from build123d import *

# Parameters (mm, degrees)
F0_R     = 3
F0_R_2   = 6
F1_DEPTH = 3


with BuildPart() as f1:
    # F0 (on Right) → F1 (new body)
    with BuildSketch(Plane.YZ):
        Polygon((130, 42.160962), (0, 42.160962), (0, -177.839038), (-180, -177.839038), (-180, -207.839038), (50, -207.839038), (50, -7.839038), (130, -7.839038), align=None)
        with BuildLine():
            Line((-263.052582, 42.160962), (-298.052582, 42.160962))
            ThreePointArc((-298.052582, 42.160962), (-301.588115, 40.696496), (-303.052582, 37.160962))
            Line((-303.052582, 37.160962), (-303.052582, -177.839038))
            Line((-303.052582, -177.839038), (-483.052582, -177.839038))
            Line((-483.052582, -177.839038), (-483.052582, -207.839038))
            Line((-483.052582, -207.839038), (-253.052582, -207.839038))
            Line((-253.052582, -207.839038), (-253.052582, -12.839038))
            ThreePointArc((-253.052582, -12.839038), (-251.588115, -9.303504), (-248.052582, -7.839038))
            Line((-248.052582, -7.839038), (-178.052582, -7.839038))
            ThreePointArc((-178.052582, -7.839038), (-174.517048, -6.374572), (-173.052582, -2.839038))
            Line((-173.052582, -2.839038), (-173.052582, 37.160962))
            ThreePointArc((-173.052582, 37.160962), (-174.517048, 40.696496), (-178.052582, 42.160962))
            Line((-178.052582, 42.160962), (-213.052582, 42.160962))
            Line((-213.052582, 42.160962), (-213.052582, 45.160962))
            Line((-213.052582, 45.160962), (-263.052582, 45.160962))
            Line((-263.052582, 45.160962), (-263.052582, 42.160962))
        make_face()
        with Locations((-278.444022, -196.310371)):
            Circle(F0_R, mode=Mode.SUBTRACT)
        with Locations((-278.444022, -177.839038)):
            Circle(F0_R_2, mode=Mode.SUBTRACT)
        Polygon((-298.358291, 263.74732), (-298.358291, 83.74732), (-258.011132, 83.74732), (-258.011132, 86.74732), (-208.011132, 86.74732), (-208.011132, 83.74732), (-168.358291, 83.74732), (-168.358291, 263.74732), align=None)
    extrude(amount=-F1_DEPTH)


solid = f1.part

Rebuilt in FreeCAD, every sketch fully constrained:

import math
import FreeCAD as App
import Part
import Sketcher
from FreeCAD import Vector

doc = App.newDocument("Part")
body = doc.addObject("PartDesign::Body", "Body")
body.AllowCompound = True

# Sketch on YZ plane
sketch1 = body.newObject("Sketcher::SketchObject", "Sketch")
sketch1.AttachmentSupport = (doc.getObject("YZ_Plane"), [""])
sketch1.MapMode = "FlatFace"
sketch1.addGeometry([
    Part.LineSegment(Vector(130, 42.160962, 0), Vector(0, 42.160962, 0)),  # 0
    Part.LineSegment(Vector(0, 42.160962, 0), Vector(0, -177.839038, 0)),  # 1
    Part.LineSegment(Vector(0, -177.839038, 0), Vector(-180, -177.839038, 0)),  # 2
    Part.LineSegment(Vector(-180, -177.839038, 0), Vector(-180, -207.839038, 0)),  # 3
    Part.LineSegment(Vector(-180, -207.839038, 0), Vector(50, -207.839038, 0)),  # 4
    Part.LineSegment(Vector(50, -207.839038, 0), Vector(50, -7.839038, 0)),  # 5
    Part.LineSegment(Vector(50, -7.839038, 0), Vector(130, -7.839038, 0)),  # 6
    Part.LineSegment(Vector(130, -7.839038, 0), Vector(130, 42.160962, 0)),  # 7
    Part.LineSegment(Vector(-263.052582, 42.160962, 0), Vector(-298.052582, 42.160962, 0)),  # 8
    Part.ArcOfCircle(Part.Circle(Vector(-298.052581, 37.160961, 0), Vector(0, 0, 1), 5.000001), math.radians(90.000016), math.radians(179.999984)),  # 9
    Part.LineSegment(Vector(-303.052582, 37.160962, 0), Vector(-303.052582, -177.839038, 0)),  # 10
    Part.LineSegment(Vector(-303.052582, -177.839038, 0), Vector(-483.052582, -177.839038, 0)),  # 11
    Part.LineSegment(Vector(-483.052582, -177.839038, 0), Vector(-483.052582, -207.839038, 0)),  # 12
    Part.LineSegment(Vector(-483.052582, -207.839038, 0), Vector(-253.052582, -207.839038, 0)),  # 13
    Part.LineSegment(Vector(-253.052582, -207.839038, 0), Vector(-253.052582, -12.839038, 0)),  # 14
    Part.ArcOfCircle(Part.Circle(Vector(-248.052581, -12.839039, 0), Vector(0, 0, 1), 5.000001), math.radians(90.000016), math.radians(179.999984)),  # 15
    Part.LineSegment(Vector(-248.052582, -7.839038, 0), Vector(-178.052582, -7.839038, 0)),  # 16
    Part.ArcOfCircle(Part.Circle(Vector(-178.052582, -2.839038, 0), Vector(0, 0, 1), 5), math.radians(-90.000004), math.radians(0.000004)),  # 17
    Part.LineSegment(Vector(-173.052582, -2.839038, 0), Vector(-173.052582, 37.160962, 0)),  # 18
    Part.ArcOfCircle(Part.Circle(Vector(-178.052582, 37.160962, 0), Vector(0, 0, 1), 5), math.radians(-0.000004), math.radians(90.000004)),  # 19
    Part.LineSegment(Vector(-178.052582, 42.160962, 0), Vector(-213.052582, 42.160962, 0)),  # 20
    Part.LineSegment(Vector(-213.052582, 42.160962, 0), Vector(-213.052582, 45.160962, 0)),  # 21
    Part.LineSegment(Vector(-213.052582, 45.160962, 0), Vector(-263.052582, 45.160962, 0)),  # 22
    Part.LineSegment(Vector(-263.052582, 45.160962, 0), Vector(-263.052582, 42.160962, 0)),  # 23
    Part.Circle(Vector(-278.444022, -196.310371, 0), Vector(0, 0, 1), 3),  # 24
    Part.Circle(Vector(-278.444022, -177.839038, 0), Vector(0, 0, 1), 6),  # 25
    Part.LineSegment(Vector(-298.358291, 263.74732, 0), Vector(-298.358291, 83.74732, 0)),  # 26
    Part.LineSegment(Vector(-298.358291, 83.74732, 0), Vector(-258.011132, 83.74732, 0)),  # 27
    Part.LineSegment(Vector(-258.011132, 83.74732, 0), Vector(-258.011132, 86.74732, 0)),  # 28
    Part.LineSegment(Vector(-258.011132, 86.74732, 0), Vector(-208.011132, 86.74732, 0)),  # 29
    Part.LineSegment(Vector(-208.011132, 86.74732, 0), Vector(-208.011132, 83.74732, 0)),  # 30
    Part.LineSegment(Vector(-208.011132, 83.74732, 0), Vector(-168.358291, 83.74732, 0)),  # 31
    Part.LineSegment(Vector(-168.358291, 83.74732, 0), Vector(-168.358291, 263.74732, 0)),  # 32
    Part.LineSegment(Vector(-168.358291, 263.74732, 0), Vector(-298.358291, 263.74732, 0)),  # 33
], False)
sketch1.addConstraint([
    Sketcher.Constraint("Coincident", 0, 2, 1, 1),
    Sketcher.Constraint("Coincident", 1, 2, 2, 1),
    Sketcher.Constraint("Coincident", 2, 2, 3, 1),
    Sketcher.Constraint("Coincident", 3, 2, 4, 1),
    Sketcher.Constraint("Coincident", 4, 2, 5, 1),
    Sketcher.Constraint("Coincident", 5, 2, 6, 1),
    Sketcher.Constraint("Coincident", 6, 2, 7, 1),
    Sketcher.Constraint("Coincident", 7, 2, 0, 1),
    Sketcher.Constraint("Tangent", 8, 2, 9, 1),
    Sketcher.Constraint("Tangent", 9, 2, 10, 1),
    Sketcher.Constraint("Coincident", 10, 2, 11, 1),
    Sketcher.Constraint("Coincident", 11, 2, 12, 1),
    Sketcher.Constraint("Coincident", 12, 2, 13, 1),
    Sketcher.Constraint("Coincident", 13, 2, 14, 1),
    Sketcher.Constraint("Tangent", 14, 2, 15, 2),
    Sketcher.Constraint("Tangent", 15, 1, 16, 1),
    Sketcher.Constraint("Tangent", 16, 2, 17, 1),
    Sketcher.Constraint("Tangent", 17, 2, 18, 1),
    Sketcher.Constraint("Tangent", 18, 2, 19, 1),
    Sketcher.Constraint("Tangent", 19, 2, 20, 1),
    Sketcher.Constraint("Coincident", 20, 2, 21, 1),
    Sketcher.Constraint("Coincident", 21, 2, 22, 1),
    Sketcher.Constraint("Coincident", 22, 2, 23, 1),
    Sketcher.Constraint("Coincident", 23, 2, 8, 1),
    Sketcher.Constraint("Coincident", 26, 2, 27, 1),
    Sketcher.Constraint("Coincident", 27, 2, 28, 1),
    Sketcher.Constraint("Coincident", 28, 2, 29, 1),
    Sketcher.Constraint("Coincident", 29, 2, 30, 1),
    Sketcher.Constraint("Coincident", 30, 2, 31, 1),
    Sketcher.Constraint("Coincident", 31, 2, 32, 1),
    Sketcher.Constraint("Coincident", 32, 2, 33, 1),
    Sketcher.Constraint("Coincident", 33, 2, 26, 1),
    Sketcher.Constraint("Horizontal", 0),
    Sketcher.Constraint("Vertical", 1),
    Sketcher.Constraint("Horizontal", 2),
    Sketcher.Constraint("Vertical", 3),
    Sketcher.Constraint("Horizontal", 4),
    Sketcher.Constraint("Vertical", 5),
    Sketcher.Constraint("Horizontal", 6),
    Sketcher.Constraint("Vertical", 7),
    Sketcher.Constraint("Horizontal", 8),
    Sketcher.Constraint("Vertical", 10),
    Sketcher.Constraint("Horizontal", 11),
    Sketcher.Constraint("Vertical", 12),
    Sketcher.Constraint("Horizontal", 13),
    Sketcher.Constraint("Vertical", 14),
    Sketcher.Constraint("Horizontal", 16),
    Sketcher.Constraint("Vertical", 18),
    Sketcher.Constraint("Horizontal", 20),
    Sketcher.Constraint("Vertical", 21),
    Sketcher.Constraint("Horizontal", 22),
    Sketcher.Constraint("Vertical", 23),
    Sketcher.Constraint("Vertical", 26),
    Sketcher.Constraint("Horizontal", 27),
    Sketcher.Constraint("Vertical", 28),
    Sketcher.Constraint("Horizontal", 29),
    Sketcher.Constraint("Vertical", 30),
    Sketcher.Constraint("Horizontal", 31),
    Sketcher.Constraint("Vertical", 32),
    Sketcher.Constraint("Horizontal", 33),
    Sketcher.Constraint("Equal", 9, 15),
    Sketcher.Constraint("Equal", 15, 17),
    Sketcher.Constraint("Equal", 17, 19),
    Sketcher.Constraint("PointOnObject", 0, 2, -2),
    Sketcher.Constraint("Horizontal", 9, 3, 19, 3),
    Sketcher.Constraint("Horizontal", 25, 3, 1, 2),
    Sketcher.Constraint("Horizontal", 7, 2, 8, 2),
    Sketcher.Constraint("Horizontal", 2, 2, 10, 2),
    Sketcher.Constraint("Horizontal", 4, 2, 12, 2),
    Sketcher.Constraint("Horizontal", 6, 2, 15, 1),
    Sketcher.Constraint("Horizontal", 27, 2, 30, 2),
    Sketcher.Constraint("Vertical", 24, 3, 25, 3),
    Sketcher.Constraint("Equal", 2, 11),
    Sketcher.Constraint("Equal", 4, 13),
    Sketcher.Constraint("Equal", 8, 20),
    Sketcher.Constraint("Equal", 22, 29),
    Sketcher.Constraint("Equal", 0, 33),
    Sketcher.Constraint("Equal", 29, 7),
    Sketcher.Constraint("Equal", 11, 26),
    Sketcher.Constraint("Equal", 23, 28),
    Sketcher.Constraint("Diameter", 24, 6.0),
    Sketcher.Constraint("Diameter", 25, 12.0),
    Sketcher.Constraint("Radius", 9, 5.000001),
    Sketcher.Constraint("DistanceX", 0, 2, 0, 1, 130.0),
    Sketcher.Constraint("DistanceX", 2, 2, 2, 1, 180.0),
    Sketcher.Constraint("DistanceX", 4, 1, 4, 2, 230.0),
    Sketcher.Constraint("DistanceX", 8, 2, 8, 1, 35.0),
    Sketcher.Constraint("DistanceX", 16, 1, 16, 2, 70.0),
    Sketcher.Constraint("DistanceY", 1, 2, 1, 1, 220.0),
    Sketcher.Constraint("DistanceY", 3, 2, 3, 1, 30.0),
    Sketcher.Constraint("DistanceY", 21, 1, 21, 2, 3.0),
    Sketcher.Constraint("DistanceX", 27, 1, 27, 2, 40.347159),
    Sketcher.Constraint("DistanceX", 9, 3, -1, 1, 298.052581),
    Sketcher.Constraint("DistanceY", -1, 1, 9, 3, 37.160961),
    Sketcher.Constraint("DistanceX", 24, 3, -1, 1, 278.444022),
    Sketcher.Constraint("DistanceY", 24, 3, -1, 1, 196.310371),
    Sketcher.Constraint("DistanceX", 26, 2, -1, 1, 298.358291),
    Sketcher.Constraint("DistanceY", -1, 1, 26, 2, 83.74732),
])
pad1 = body.newObject("PartDesign::Pad", "Pad")
pad1.Profile = sketch1
pad1.Length = 3
pad1.Reversed = True

doc.recompute()
